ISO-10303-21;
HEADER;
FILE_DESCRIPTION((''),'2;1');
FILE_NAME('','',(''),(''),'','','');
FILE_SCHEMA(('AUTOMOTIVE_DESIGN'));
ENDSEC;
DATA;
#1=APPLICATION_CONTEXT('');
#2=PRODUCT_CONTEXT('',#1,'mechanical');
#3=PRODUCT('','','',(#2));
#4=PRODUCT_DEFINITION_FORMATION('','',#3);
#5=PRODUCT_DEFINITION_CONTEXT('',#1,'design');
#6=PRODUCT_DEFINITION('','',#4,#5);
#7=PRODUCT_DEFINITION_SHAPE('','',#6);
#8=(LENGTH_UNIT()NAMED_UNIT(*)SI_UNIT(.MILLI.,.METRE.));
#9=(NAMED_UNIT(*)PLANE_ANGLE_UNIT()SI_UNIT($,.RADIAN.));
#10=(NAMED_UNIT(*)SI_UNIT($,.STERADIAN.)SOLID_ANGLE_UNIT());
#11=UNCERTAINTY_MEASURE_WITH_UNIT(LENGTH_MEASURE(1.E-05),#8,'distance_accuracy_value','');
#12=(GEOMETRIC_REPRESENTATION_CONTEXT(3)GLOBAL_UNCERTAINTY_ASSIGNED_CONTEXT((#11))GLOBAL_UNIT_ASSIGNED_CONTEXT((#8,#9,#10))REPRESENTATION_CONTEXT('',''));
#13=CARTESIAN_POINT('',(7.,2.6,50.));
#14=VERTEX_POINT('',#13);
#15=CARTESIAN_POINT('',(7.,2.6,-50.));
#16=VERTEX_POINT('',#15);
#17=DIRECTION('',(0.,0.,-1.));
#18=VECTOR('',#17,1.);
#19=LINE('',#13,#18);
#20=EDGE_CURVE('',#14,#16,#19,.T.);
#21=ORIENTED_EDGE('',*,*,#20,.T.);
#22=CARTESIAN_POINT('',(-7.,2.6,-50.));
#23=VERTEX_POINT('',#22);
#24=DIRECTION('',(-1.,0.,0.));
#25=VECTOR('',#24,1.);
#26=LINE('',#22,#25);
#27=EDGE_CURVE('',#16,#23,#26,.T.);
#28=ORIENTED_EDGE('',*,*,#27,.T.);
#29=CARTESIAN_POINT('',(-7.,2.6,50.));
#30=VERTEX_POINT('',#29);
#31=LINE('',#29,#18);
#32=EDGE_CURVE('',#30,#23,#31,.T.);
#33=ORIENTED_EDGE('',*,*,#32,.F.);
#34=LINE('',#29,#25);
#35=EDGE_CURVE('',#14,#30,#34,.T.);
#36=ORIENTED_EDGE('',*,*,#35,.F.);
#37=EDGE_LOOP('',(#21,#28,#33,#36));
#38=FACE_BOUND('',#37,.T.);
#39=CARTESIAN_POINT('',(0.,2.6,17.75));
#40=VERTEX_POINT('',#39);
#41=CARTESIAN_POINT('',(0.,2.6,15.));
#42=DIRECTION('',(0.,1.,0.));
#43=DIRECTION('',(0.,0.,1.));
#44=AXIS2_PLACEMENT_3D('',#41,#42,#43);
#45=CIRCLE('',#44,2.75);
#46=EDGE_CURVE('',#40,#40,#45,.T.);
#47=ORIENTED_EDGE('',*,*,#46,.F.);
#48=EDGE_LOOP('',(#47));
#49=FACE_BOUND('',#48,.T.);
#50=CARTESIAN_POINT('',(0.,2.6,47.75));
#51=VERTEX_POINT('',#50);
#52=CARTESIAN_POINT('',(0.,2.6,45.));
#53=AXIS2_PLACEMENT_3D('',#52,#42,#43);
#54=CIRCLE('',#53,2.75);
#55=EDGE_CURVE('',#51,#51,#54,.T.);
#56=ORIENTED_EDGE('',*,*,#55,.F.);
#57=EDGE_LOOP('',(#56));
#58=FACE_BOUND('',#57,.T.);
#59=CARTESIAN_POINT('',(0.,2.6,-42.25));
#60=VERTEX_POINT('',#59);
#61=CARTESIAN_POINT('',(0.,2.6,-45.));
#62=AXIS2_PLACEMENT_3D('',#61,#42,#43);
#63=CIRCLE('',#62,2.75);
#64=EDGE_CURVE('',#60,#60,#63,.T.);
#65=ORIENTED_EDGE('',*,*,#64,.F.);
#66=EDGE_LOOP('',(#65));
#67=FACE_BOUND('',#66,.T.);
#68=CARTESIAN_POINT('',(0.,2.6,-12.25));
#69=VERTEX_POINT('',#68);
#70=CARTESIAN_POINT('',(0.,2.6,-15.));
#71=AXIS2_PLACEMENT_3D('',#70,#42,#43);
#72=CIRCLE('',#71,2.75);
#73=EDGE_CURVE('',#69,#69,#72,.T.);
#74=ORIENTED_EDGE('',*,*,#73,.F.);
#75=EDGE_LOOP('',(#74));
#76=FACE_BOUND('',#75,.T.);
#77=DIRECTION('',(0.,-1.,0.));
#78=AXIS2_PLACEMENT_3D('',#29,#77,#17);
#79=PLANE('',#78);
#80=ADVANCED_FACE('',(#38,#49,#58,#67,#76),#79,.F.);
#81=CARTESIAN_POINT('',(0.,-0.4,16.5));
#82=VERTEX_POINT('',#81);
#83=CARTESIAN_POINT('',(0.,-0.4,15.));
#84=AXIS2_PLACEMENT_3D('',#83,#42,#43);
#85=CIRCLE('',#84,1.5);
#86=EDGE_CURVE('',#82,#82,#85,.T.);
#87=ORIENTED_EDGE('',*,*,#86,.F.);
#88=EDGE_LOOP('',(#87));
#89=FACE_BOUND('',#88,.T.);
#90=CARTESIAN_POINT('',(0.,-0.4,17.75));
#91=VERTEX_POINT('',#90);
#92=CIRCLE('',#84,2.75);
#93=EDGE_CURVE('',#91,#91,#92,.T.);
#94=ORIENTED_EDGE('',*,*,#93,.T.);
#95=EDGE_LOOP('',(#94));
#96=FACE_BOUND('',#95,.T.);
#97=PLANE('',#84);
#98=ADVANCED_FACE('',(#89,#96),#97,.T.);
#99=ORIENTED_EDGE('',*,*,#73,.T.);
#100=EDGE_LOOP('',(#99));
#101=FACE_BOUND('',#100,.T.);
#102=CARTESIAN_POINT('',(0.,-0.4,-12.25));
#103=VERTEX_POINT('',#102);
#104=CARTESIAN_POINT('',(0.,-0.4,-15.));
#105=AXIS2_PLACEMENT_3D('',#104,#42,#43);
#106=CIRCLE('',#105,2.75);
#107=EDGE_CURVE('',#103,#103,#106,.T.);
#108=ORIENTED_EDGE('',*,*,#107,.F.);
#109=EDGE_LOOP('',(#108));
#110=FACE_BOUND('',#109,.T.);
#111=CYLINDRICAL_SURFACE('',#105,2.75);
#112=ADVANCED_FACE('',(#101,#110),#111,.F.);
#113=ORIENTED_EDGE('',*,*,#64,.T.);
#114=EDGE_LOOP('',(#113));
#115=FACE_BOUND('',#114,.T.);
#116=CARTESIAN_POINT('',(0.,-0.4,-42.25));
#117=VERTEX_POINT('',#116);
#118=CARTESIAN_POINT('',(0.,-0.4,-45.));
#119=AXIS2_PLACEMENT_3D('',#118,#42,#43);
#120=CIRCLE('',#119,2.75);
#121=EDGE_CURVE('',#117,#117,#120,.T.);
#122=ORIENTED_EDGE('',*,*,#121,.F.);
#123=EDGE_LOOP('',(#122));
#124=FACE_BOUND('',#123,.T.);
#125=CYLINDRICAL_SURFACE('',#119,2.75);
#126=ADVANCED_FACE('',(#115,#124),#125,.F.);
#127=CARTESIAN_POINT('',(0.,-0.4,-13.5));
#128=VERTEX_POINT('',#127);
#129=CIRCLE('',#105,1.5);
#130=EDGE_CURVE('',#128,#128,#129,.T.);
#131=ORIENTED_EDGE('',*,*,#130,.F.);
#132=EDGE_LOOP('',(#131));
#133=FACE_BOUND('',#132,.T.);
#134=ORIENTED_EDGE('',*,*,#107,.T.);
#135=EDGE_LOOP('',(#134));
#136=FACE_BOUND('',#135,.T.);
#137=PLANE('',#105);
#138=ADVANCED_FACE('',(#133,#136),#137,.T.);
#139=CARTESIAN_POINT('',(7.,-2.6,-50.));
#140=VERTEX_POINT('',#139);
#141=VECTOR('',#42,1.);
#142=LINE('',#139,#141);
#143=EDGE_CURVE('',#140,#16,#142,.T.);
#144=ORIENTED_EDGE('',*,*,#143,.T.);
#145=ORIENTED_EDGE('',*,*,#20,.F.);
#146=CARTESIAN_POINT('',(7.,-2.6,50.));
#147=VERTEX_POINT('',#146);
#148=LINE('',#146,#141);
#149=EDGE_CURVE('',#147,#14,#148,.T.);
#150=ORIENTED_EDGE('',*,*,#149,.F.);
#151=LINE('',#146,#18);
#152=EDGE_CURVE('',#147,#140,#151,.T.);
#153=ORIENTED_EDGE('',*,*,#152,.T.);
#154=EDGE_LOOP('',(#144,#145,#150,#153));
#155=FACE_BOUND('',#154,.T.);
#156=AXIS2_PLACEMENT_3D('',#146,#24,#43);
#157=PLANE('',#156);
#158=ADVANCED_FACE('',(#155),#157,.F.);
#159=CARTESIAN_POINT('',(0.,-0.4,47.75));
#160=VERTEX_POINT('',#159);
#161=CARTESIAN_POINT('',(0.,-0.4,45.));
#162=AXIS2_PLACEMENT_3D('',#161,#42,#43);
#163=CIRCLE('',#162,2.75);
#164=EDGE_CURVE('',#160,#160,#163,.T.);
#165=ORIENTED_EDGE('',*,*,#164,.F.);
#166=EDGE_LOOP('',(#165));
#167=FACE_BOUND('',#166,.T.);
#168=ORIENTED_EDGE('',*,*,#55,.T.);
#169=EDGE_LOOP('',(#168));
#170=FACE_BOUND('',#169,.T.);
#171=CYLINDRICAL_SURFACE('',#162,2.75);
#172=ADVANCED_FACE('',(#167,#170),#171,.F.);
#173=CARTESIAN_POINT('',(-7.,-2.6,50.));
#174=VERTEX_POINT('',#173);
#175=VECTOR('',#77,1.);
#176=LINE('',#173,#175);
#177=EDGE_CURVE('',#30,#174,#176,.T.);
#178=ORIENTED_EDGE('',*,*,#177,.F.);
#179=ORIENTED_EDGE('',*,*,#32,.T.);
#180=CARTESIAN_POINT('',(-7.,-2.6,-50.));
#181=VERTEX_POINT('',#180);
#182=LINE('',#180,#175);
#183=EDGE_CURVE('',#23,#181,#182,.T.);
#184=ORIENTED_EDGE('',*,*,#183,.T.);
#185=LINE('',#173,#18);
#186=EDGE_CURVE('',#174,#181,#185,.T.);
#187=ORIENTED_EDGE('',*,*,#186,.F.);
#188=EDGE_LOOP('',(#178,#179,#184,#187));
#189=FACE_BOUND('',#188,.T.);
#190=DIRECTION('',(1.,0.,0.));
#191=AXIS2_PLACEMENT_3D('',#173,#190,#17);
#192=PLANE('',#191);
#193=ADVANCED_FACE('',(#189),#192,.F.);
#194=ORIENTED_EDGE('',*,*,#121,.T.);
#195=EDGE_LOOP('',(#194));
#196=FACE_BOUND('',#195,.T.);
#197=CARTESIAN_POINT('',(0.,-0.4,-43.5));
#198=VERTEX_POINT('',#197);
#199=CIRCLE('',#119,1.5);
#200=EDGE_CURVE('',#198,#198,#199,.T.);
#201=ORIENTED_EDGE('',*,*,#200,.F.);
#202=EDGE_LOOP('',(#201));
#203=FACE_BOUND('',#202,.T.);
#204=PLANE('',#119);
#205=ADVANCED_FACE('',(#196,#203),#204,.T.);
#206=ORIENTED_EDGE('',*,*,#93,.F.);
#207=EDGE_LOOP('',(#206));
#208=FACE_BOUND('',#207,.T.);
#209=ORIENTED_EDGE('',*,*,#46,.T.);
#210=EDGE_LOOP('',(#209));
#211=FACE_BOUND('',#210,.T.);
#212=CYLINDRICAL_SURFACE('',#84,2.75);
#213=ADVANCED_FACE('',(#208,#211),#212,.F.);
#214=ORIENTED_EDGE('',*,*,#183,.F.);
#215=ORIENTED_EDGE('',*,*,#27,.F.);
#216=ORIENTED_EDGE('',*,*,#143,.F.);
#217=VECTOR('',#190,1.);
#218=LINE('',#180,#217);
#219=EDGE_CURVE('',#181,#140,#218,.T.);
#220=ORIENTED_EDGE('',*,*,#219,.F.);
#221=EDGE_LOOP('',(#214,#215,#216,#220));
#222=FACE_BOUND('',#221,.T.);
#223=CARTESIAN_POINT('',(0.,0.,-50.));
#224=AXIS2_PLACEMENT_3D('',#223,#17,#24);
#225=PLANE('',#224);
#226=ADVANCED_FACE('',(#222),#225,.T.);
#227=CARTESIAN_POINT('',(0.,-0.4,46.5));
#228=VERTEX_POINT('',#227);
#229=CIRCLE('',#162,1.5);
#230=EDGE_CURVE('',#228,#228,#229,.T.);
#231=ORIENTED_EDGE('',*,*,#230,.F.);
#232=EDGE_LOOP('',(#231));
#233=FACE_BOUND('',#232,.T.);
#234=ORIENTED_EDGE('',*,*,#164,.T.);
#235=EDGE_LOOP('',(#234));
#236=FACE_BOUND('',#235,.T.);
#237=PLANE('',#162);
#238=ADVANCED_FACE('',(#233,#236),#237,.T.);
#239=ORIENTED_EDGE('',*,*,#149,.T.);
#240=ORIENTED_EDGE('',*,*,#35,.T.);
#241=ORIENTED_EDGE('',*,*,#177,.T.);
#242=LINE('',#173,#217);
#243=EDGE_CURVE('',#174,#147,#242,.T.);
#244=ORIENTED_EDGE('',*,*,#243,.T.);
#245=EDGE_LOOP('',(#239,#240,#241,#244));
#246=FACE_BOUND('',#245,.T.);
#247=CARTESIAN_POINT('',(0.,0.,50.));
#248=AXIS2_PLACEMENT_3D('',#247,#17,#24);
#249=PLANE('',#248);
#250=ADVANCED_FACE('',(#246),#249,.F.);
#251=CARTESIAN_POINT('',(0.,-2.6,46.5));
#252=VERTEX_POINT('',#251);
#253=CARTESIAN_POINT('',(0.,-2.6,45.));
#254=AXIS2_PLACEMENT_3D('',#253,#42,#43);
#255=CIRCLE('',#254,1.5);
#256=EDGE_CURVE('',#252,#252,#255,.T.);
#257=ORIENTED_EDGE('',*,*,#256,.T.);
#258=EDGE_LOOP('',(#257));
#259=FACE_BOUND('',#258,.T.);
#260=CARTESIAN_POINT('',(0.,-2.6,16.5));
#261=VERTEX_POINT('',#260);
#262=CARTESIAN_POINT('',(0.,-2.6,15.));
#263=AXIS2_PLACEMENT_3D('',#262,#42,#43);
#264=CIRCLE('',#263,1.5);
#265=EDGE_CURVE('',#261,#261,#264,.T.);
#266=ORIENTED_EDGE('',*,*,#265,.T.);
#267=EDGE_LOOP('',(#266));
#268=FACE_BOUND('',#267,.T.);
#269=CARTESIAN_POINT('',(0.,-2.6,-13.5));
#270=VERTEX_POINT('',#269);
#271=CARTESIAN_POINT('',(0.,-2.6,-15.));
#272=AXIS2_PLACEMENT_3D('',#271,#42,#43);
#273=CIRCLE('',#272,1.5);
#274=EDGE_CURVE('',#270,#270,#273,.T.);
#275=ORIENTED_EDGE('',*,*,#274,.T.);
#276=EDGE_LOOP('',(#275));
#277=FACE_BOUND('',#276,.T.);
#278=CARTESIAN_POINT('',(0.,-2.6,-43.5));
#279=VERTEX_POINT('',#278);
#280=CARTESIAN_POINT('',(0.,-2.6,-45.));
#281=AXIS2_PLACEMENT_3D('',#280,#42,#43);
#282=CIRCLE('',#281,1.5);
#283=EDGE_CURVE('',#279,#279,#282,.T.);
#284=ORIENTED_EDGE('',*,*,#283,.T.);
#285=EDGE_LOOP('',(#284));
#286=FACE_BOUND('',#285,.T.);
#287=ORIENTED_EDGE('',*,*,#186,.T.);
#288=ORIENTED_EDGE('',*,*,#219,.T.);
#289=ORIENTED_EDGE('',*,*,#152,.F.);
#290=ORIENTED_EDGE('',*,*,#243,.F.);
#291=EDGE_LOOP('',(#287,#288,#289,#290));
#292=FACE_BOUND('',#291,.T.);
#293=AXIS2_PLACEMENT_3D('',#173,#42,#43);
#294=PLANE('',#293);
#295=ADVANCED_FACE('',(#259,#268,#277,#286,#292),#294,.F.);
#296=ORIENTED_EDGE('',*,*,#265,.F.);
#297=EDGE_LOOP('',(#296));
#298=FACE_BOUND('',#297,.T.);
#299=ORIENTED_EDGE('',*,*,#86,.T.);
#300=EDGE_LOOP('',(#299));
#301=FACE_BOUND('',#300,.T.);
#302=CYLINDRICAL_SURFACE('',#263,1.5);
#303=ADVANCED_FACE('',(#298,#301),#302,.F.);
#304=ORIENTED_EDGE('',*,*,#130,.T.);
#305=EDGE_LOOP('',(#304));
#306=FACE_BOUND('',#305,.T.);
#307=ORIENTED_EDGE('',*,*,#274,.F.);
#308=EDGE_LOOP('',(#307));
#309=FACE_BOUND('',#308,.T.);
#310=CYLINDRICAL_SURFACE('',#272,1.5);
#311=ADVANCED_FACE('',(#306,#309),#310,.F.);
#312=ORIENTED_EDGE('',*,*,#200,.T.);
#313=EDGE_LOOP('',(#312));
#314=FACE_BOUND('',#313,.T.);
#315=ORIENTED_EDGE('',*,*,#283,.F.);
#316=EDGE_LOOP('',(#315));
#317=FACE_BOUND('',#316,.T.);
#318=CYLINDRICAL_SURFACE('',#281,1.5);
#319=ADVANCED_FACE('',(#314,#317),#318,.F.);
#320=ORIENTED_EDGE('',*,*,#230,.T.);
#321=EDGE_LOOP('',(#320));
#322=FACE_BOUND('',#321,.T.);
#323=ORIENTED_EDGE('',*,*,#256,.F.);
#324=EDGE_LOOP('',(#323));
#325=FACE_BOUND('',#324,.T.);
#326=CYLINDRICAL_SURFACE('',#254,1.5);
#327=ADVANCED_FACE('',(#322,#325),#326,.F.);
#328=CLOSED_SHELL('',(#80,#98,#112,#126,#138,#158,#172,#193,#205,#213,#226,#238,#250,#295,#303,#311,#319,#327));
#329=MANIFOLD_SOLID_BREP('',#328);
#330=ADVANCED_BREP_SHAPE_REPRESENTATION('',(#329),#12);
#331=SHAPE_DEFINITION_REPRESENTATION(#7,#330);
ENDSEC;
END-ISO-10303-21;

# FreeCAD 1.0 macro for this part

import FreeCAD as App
import Part
import Sketcher
Q = App.Units.Quantity


def add_polygon(sketch, points):
    """Adds a closed chain of lines whose ends are joined by coincident constraints."""
    first, n = sketch.GeometryCount, len(points)
    for a, b in zip(points, points[1:] + points[:1]):
        sketch.addGeometry(Part.LineSegment(App.Vector(*a, 0), App.Vector(*b, 0)), False)
    for i in range(n):
        sketch.addConstraint(Sketcher.Constraint("Coincident", first + i, 2, first + (i + 1) % n, 1))

doc = App.newDocument("Part")
params = doc.addObject("Spreadsheet::Sheet", "Params")
for row, (alias, value) in enumerate([
    ("sketch1_width", "14 mm"),
    ("sketch1_height", "5.2 mm"),
    ("pad1_length", "100 mm"),
    ("sketch2_diameter", "5.5 mm"),
    ("pocket1_length", "3 mm"),
    ("sketch3_diameter", "3 mm"),
], start=1):
    params.set(f"A{row}", alias)
    params.set(f"B{row}", "=" + value)
    params.setAlias(f"B{row}", alias)

body = doc.addObject("PartDesign::Body", "Body")

sketch1 = body.newObject("Sketcher::SketchObject", "Sketch")
sketch1.AttachmentSupport = (doc.getObject("XY_Plane"), [""])
sketch1.MapMode = "FlatFace"
add_polygon(sketch1, [(-7, 3), (-7, -3), (7, -3), (7, 3)])
sketch1.addConstraint([
    Sketcher.Constraint("Vertical", 0),
    Sketcher.Constraint("Horizontal", 1),
    Sketcher.Constraint("Vertical", 2),
    Sketcher.Constraint("Horizontal", 3),
    Sketcher.Constraint("Symmetric", 0, 2, 2, 2, -1, 1),
    Sketcher.Constraint("DistanceX", 1, 1, 1, 2, Q("14 mm")),
    Sketcher.Constraint("DistanceY", 0, 2, 0, 1, Q("5.2 mm")),
])
sketch1.setExpression("Constraints[9]", "Params.sketch1_width")
sketch1.setExpression("Constraints[10]", "Params.sketch1_height")
pad1 = body.newObject("PartDesign::Pad", "Pad")
pad1.Profile = sketch1
pad1.setExpression("Length", "Params.pad1_length")
pad1.Midplane = True

sketch2 = body.newObject("Sketcher::SketchObject", "Sketch001")
sketch2.AttachmentSupport = (doc.getObject("XZ_Plane"), [""])
sketch2.MapMode = "FlatFace"
sketch2.AttachmentOffset = App.Placement(App.Vector(0, 0, -2.6), App.Rotation())
sketch2.addGeometry([
    Part.Circle(App.Vector(0, 45, 0), App.Vector(0, 0, 1), 2.8),
    Part.Circle(App.Vector(0, 15, 0), App.Vector(0, 0, 1), 2.8),
    Part.Circle(App.Vector(0, -15, 0), App.Vector(0, 0, 1), 2.8),
    Part.Circle(App.Vector(0, -45, 0), App.Vector(0, 0, 1), 2.8),
], False)
sketch2.addConstraint([
    Sketcher.Constraint("Equal", 0, 1),
    Sketcher.Constraint("Equal", 1, 2),
    Sketcher.Constraint("Equal", 2, 3),
    Sketcher.Constraint("Symmetric", 1, 3, 2, 3, -1, 1),
    Sketcher.Constraint("Symmetric", 0, 3, 3, 3, -1, 1),
    Sketcher.Constraint("PointOnObject", 0, 3, -2),
    Sketcher.Constraint("PointOnObject", 1, 3, -2),
    Sketcher.Constraint("Diameter", 0, Q("5.5 mm")),
    Sketcher.Constraint("DistanceY", -1, 1, 0, 3, Q("45 mm")),
    Sketcher.Constraint("DistanceY", -1, 1, 1, 3, Q("15 mm")),
])
sketch2.setExpression("Constraints[7]", "Params.sketch2_diameter")
pocket1 = body.newObject("PartDesign::Pocket", "Pocket")
pocket1.Profile = sketch2
pocket1.setExpression("Length", "Params.pocket1_length")
pocket1.Reversed = True

sketch3 = body.newObject("Sketcher::SketchObject", "Sketch002")
sketch3.AttachmentSupport = (doc.getObject("XZ_Plane"), [""])
sketch3.MapMode = "FlatFace"
sketch3.AttachmentOffset = App.Placement(App.Vector(0, 0, -2.6), App.Rotation())
sketch3.addGeometry([
    Part.Circle(App.Vector(0, 45, 0), App.Vector(0, 0, 1), 1.5),
    Part.Circle(App.Vector(0, 15, 0), App.Vector(0, 0, 1), 1.5),
    Part.Circle(App.Vector(0, -15, 0), App.Vector(0, 0, 1), 1.5),
    Part.Circle(App.Vector(0, -45, 0), App.Vector(0, 0, 1), 1.5),
], False)
sketch3.addConstraint([
    Sketcher.Constraint("Equal", 0, 1),
    Sketcher.Constraint("Equal", 1, 2),
    Sketcher.Constraint("Equal", 2, 3),
    Sketcher.Constraint("Symmetric", 1, 3, 2, 3, -1, 1),
    Sketcher.Constraint("Symmetric", 0, 3, 3, 3, -1, 1),
    Sketcher.Constraint("PointOnObject", 0, 3, -2),
    Sketcher.Constraint("PointOnObject", 1, 3, -2),
    Sketcher.Constraint("Diameter", 0, Q("3 mm")),
    Sketcher.Constraint("DistanceY", -1, 1, 0, 3, Q("45 mm")),
    Sketcher.Constraint("DistanceY", -1, 1, 1, 3, Q("15 mm")),
])
sketch3.setExpression("Constraints[7]", "Params.sketch3_diameter")
pocket2 = body.newObject("PartDesign::Pocket", "Pocket001")
pocket2.Profile = sketch3
pocket2.Type = "ThroughAll"
pocket2.Midplane = True

doc.recompute()
